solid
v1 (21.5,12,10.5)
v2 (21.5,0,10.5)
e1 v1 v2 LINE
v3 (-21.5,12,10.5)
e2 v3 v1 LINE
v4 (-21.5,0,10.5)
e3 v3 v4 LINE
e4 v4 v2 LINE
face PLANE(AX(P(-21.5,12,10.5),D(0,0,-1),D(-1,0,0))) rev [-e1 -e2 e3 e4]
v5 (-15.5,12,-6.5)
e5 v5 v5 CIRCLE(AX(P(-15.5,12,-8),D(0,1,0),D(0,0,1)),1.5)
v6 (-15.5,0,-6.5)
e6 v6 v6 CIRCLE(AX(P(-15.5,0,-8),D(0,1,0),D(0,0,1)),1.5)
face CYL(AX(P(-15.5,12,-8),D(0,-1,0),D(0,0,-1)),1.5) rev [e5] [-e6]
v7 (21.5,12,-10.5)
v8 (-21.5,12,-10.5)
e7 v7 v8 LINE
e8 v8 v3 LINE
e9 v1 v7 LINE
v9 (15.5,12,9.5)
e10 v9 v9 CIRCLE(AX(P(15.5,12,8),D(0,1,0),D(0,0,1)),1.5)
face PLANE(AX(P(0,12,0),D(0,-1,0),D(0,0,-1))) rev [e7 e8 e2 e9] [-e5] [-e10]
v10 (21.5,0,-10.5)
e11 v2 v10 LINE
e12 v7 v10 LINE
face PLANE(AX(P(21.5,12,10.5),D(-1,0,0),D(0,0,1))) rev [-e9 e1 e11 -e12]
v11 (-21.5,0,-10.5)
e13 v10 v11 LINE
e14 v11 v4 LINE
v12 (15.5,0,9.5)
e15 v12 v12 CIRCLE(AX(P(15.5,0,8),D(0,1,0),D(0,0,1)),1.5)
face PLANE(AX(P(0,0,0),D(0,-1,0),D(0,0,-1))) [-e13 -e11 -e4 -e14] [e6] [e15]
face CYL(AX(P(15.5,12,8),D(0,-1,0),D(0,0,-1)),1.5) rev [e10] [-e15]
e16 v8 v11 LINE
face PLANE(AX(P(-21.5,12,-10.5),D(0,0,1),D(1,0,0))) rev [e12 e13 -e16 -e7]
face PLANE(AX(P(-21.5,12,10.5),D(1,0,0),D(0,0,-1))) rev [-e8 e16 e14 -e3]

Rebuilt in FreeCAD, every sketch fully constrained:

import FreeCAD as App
import Part
import Sketcher
from FreeCAD import Vector
Q = App.Units.Quantity

doc = App.newDocument("Part")
body = doc.addObject("PartDesign::Body", "Body")

# Sketch on XZ plane
sketch1 = body.newObject("Sketcher::SketchObject", "Sketch")
sketch1.AttachmentSupport = (doc.getObject("XZ_Plane"), [""])
sketch1.MapMode = "FlatFace"
sketch1.addGeometry(Part.LineSegment(Vector(-21.5, -10.5, 0), Vector(-21.5, 10.5, 0)), False)
sketch1.addGeometry(Part.LineSegment(Vector(-21.5, 10.5, 0), Vector(21.5, 10.5, 0)), False)
sketch1.addGeometry(Part.LineSegment(Vector(21.5, 10.5, 0), Vector(21.5, -10.5, 0)), False)
sketch1.addGeometry(Part.LineSegment(Vector(21.5, -10.5, 0), Vector(-21.5, -10.5, 0)), False)
sketch1.addGeometry(Part.Circle(Vector(15.5, 8, 0), Vector(0, 0, 1), 1.5), False)
sketch1.addGeometry(Part.Circle(Vector(-15.5, -8, 0), Vector(0, 0, 1), 1.5), False)
sketch1.addConstraint(Sketcher.Constraint("Coincident", 0, 2, 1, 1))
sketch1.addConstraint(Sketcher.Constraint("Coincident", 1, 2, 2, 1))
sketch1.addConstraint(Sketcher.Constraint("Coincident", 2, 2, 3, 1))
sketch1.addConstraint(Sketcher.Constraint("Coincident", 3, 2, 0, 1))
sketch1.addConstraint(Sketcher.Constraint("Vertical", 0))
sketch1.addConstraint(Sketcher.Constraint("Horizontal", 1))
sketch1.addConstraint(Sketcher.Constraint("Vertical", 2))
sketch1.addConstraint(Sketcher.Constraint("Horizontal", 3))
sketch1.addConstraint(Sketcher.Constraint("Equal", 4, 5))
sketch1.addConstraint(Sketcher.Constraint("Symmetric", 4, 3, 5, 3, -1, 1))
sketch1.addConstraint(Sketcher.Constraint("Symmetric", 0, 2, 2, 2, -1, 1))
sketch1.addConstraint(Sketcher.Constraint("Diameter", 4, Q("3 mm")))
sketch1.addConstraint(Sketcher.Constraint("DistanceX", 1, 1, 1, 2, Q("43 mm")))
sketch1.addConstraint(Sketcher.Constraint("DistanceY", 0, 1, 0, 2, Q("21 mm")))
sketch1.addConstraint(Sketcher.Constraint("DistanceY", -1, 1, 4, 3, Q("8 mm")))
sketch1.addConstraint(Sketcher.Constraint("DistanceX", 5, 3, 4, 3, Q("31 mm")))
pad1 = body.newObject("PartDesign::Pad", "Pad")
pad1.Profile = sketch1
pad1.Length = 12
pad1.Reversed = True

doc.recompute()
